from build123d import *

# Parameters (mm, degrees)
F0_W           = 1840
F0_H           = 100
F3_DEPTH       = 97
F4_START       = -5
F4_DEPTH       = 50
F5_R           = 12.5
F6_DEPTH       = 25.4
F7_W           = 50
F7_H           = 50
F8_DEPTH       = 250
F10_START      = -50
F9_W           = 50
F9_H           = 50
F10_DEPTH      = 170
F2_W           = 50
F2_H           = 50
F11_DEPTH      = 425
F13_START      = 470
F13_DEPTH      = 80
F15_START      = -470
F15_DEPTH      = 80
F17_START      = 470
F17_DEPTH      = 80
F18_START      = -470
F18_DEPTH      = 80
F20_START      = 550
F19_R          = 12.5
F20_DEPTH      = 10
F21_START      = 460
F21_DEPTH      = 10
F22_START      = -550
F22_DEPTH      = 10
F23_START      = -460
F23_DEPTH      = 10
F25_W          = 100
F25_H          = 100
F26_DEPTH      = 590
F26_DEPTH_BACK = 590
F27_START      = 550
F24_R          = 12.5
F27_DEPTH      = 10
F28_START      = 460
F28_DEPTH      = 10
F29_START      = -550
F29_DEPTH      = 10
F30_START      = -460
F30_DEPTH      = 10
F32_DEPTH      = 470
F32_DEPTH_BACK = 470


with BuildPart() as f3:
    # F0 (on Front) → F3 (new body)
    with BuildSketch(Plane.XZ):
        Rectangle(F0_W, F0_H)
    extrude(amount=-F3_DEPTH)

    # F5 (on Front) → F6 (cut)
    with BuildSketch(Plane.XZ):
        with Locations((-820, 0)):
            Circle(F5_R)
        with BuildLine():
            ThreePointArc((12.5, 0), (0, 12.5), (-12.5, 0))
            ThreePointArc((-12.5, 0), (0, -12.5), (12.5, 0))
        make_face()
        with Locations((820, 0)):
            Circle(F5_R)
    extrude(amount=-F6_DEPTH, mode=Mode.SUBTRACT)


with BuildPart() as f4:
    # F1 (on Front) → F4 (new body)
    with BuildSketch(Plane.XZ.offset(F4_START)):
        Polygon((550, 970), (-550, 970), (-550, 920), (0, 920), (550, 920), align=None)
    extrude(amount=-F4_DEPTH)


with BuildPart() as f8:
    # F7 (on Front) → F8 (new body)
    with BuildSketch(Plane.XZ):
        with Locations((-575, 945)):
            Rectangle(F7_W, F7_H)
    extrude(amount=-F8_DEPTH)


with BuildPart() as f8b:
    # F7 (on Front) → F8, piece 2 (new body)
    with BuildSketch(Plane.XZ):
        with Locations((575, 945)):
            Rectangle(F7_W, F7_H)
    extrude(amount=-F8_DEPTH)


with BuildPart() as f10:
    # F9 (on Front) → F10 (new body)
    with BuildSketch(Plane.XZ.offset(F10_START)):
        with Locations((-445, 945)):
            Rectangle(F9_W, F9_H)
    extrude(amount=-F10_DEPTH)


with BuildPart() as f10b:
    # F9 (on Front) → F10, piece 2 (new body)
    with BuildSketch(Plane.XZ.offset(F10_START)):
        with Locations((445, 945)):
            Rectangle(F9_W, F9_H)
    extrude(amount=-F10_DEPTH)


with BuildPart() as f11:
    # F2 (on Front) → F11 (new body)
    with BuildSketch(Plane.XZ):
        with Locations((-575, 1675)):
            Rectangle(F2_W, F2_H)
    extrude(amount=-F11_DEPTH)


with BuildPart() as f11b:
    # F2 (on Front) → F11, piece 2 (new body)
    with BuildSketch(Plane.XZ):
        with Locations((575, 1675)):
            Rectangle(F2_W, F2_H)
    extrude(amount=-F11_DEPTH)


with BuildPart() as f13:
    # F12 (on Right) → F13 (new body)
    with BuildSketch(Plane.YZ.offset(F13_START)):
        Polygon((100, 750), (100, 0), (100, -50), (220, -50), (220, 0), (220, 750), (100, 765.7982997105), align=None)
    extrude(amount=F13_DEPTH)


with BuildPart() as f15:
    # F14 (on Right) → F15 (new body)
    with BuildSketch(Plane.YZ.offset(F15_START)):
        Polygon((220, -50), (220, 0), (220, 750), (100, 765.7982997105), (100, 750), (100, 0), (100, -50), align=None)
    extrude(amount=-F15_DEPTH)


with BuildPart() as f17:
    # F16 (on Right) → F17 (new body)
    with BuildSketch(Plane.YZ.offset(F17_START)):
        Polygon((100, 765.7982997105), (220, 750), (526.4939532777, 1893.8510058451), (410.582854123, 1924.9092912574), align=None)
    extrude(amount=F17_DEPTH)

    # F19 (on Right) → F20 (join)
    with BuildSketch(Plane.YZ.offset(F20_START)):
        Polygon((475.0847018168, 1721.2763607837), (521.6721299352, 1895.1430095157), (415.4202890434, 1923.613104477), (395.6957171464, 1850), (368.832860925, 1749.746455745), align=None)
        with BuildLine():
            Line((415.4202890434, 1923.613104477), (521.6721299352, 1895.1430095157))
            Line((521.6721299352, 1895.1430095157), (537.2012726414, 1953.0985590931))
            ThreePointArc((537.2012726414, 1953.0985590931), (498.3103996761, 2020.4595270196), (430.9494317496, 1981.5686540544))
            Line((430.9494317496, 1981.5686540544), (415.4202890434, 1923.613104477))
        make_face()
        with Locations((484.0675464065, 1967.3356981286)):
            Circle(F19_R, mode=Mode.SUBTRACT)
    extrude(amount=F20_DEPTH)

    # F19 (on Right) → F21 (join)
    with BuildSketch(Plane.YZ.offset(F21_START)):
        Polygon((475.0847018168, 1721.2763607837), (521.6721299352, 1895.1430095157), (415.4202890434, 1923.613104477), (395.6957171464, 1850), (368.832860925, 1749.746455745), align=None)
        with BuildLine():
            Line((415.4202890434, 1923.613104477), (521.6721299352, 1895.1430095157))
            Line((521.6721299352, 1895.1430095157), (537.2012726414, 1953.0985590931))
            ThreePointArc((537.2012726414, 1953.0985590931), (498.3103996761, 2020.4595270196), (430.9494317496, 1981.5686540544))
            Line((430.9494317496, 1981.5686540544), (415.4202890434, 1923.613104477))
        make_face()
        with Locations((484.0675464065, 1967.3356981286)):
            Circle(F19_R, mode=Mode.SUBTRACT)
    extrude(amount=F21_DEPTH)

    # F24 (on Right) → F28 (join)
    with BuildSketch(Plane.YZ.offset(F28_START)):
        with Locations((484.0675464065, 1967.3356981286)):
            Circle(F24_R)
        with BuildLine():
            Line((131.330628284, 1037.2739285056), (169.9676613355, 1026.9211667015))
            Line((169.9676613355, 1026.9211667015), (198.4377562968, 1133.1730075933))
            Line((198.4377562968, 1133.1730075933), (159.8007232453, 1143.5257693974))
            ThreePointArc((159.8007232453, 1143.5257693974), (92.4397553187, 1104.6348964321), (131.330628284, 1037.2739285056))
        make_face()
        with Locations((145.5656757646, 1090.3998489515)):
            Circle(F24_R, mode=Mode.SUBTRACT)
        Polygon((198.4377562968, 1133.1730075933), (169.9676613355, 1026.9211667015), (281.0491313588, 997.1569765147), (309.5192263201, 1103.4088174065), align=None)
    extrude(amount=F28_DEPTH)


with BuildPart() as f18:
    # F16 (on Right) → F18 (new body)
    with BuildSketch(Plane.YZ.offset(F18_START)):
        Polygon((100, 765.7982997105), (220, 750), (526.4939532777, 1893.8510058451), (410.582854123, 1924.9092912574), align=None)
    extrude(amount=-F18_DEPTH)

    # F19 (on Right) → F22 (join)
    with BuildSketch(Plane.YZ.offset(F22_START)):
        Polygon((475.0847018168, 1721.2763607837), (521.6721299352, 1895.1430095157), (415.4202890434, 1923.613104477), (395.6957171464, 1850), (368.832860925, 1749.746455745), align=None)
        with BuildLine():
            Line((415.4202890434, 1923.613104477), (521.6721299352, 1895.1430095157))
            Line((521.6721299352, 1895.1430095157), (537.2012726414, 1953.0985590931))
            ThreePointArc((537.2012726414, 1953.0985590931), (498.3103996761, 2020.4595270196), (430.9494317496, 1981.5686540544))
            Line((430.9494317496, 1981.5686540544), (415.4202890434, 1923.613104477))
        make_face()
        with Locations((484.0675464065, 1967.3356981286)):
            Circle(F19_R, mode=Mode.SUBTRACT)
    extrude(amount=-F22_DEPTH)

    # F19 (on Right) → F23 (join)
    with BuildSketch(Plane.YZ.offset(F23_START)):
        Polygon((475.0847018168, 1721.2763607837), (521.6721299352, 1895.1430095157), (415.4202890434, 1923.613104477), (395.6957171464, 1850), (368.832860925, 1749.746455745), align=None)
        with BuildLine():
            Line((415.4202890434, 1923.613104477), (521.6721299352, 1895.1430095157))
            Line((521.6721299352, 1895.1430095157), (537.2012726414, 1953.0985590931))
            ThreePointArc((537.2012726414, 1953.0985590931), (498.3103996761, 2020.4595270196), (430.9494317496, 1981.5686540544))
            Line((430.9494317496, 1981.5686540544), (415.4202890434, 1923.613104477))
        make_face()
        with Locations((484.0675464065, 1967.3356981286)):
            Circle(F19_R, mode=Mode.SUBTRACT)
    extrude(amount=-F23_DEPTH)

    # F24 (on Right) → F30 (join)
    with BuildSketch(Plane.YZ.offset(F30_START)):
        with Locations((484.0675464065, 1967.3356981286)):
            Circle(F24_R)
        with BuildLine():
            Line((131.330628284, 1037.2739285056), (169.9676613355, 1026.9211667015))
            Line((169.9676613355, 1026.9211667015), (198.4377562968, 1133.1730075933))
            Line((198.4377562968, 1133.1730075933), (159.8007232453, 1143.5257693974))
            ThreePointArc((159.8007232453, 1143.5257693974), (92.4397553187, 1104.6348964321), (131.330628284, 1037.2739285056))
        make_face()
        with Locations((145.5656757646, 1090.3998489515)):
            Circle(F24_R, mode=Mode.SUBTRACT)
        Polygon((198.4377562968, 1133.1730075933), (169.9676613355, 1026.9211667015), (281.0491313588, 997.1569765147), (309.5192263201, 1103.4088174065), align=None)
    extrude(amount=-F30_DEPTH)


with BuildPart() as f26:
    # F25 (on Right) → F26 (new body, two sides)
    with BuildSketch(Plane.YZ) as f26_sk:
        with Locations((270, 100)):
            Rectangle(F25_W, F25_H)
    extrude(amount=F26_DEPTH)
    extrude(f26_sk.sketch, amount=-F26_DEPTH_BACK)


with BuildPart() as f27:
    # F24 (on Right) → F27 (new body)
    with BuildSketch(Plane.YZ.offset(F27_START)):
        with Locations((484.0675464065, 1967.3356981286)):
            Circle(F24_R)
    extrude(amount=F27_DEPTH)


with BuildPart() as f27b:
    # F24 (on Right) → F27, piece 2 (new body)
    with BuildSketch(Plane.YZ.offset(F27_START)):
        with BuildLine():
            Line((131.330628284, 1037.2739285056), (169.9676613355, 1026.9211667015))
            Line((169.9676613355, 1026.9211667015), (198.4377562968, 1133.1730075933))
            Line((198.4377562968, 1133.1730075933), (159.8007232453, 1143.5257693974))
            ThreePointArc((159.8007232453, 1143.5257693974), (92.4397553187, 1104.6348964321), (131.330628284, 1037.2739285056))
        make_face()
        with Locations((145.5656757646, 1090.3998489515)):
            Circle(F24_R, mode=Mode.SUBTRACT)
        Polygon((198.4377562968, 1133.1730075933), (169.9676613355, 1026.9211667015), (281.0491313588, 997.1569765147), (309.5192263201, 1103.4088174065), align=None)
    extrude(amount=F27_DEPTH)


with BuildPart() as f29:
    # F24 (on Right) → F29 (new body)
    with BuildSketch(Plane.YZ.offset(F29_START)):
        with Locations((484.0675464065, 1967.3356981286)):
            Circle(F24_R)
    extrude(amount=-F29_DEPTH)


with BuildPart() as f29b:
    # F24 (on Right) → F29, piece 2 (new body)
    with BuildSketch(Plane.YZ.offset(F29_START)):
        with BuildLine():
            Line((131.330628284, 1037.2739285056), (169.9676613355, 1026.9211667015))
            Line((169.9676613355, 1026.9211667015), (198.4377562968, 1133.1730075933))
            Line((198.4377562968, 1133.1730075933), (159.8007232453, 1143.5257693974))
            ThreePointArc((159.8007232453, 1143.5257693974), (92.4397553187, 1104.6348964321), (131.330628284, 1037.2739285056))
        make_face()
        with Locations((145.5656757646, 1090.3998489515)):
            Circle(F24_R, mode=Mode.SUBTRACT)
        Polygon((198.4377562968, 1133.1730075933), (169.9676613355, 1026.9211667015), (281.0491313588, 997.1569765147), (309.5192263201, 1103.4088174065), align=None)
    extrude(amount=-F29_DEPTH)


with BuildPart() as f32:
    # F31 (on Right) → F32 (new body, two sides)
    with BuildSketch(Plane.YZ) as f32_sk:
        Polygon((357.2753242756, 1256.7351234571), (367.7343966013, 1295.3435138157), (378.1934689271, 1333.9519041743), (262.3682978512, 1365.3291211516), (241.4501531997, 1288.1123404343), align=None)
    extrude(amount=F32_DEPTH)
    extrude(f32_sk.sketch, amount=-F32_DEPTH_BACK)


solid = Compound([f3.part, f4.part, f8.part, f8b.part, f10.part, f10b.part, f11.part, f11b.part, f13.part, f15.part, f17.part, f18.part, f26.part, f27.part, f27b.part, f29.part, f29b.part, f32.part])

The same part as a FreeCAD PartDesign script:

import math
import FreeCAD as App
import Part
import Sketcher
from FreeCAD import Vector
Q = App.Units.Quantity

doc = App.newDocument("Part")
body = doc.addObject("PartDesign::Body", "Body")

sketch1 = body.newObject("Sketcher::SketchObject", "Sketch")
sketch1.AttachmentSupport = (doc.getObject("XZ_Plane"), [""])
sketch1.MapMode = "FlatFace"
sketch1.addGeometry([
    Part.LineSegment(Vector(-920, 50, 0), Vector(-920, -50, 0)),
    Part.LineSegment(Vector(-920, -50, 0), Vector(920, -50, 0)),
    Part.LineSegment(Vector(920, -50, 0), Vector(920, 50, 0)),
    Part.LineSegment(Vector(920, 50, 0), Vector(-920, 50, 0)),
], False)
sketch1.addConstraint([
    Sketcher.Constraint("Coincident", 0, 2, 1, 1),
    Sketcher.Constraint("Coincident", 1, 2, 2, 1),
    Sketcher.Constraint("Coincident", 2, 2, 3, 1),
    Sketcher.Constraint("Coincident", 3, 2, 0, 1),
    Sketcher.Constraint("Vertical", 0),
    Sketcher.Constraint("Horizontal", 1),
    Sketcher.Constraint("Vertical", 2),
    Sketcher.Constraint("Horizontal", 3),
    Sketcher.Constraint("Symmetric", 0, 2, 2, 2, -1, 1),
    Sketcher.Constraint("DistanceX", 1, 1, 1, 2, Q("1840 mm")),
    Sketcher.Constraint("DistanceY", 0, 2, 0, 1, Q("100 mm")),
])
pad1 = body.newObject("PartDesign::Pad", "Pad")
pad1.Profile = sketch1
pad1.Length = 97
pad1.Reversed = True

sketch2 = body.newObject("Sketcher::SketchObject", "Sketch001")
sketch2.AttachmentSupport = (doc.getObject("XZ_Plane"), [""])
sketch2.MapMode = "FlatFace"
sketch2.addGeometry([
    Part.Circle(Vector(-820, 0, 0), Vector(0, 0, 1), 12),
    Part.Circle(Vector(0, 0, 0), Vector(0, 0, 1), 12),
    Part.Circle(Vector(820, 0, 0), Vector(0, 0, 1), 12),
], False)
sketch2.addConstraint([
    Sketcher.Constraint("Coincident", 1, 3, -1, 1),
    Sketcher.Constraint("Equal", 0, 1),
    Sketcher.Constraint("Equal", 1, 2),
    Sketcher.Constraint("Symmetric", 0, 3, 2, 3, -1, 1),
    Sketcher.Constraint("PointOnObject", 0, 3, -1),
    Sketcher.Constraint("Diameter", 0, Q("25 mm")),
    Sketcher.Constraint("DistanceX", 0, 3, -1, 1, Q("820 mm")),
])
pocket1 = body.newObject("PartDesign::Pocket", "Pocket")
pocket1.Profile = sketch2
pocket1.Length = 25.4
body2 = doc.addObject("PartDesign::Body", "Body001")

sketch3 = body2.newObject("Sketcher::SketchObject", "Sketch002")
sketch3.AttachmentSupport = (doc.getObject("XZ_Plane001"), [""])
sketch3.MapMode = "FlatFace"
sketch3.AttachmentOffset = App.Placement(Vector(0, 0, -5), App.Rotation())
sketch3.addGeometry([
    Part.LineSegment(Vector(550, 970, 0), Vector(-550, 970, 0)),
    Part.LineSegment(Vector(-550, 970, 0), Vector(-550, 920, 0)),
    Part.LineSegment(Vector(-550, 920, 0), Vector(550, 920, 0)),
    Part.LineSegment(Vector(550, 920, 0), Vector(550, 970, 0)),
], False)
sketch3.addConstraint([
    Sketcher.Constraint("Coincident", 0, 2, 1, 1),
    Sketcher.Constraint("Coincident", 1, 2, 2, 1),
    Sketcher.Constraint("Coincident", 2, 2, 3, 1),
    Sketcher.Constraint("Coincident", 3, 2, 0, 1),
    Sketcher.Constraint("Horizontal", 0),
    Sketcher.Constraint("Vertical", 1),
    Sketcher.Constraint("Horizontal", 2),
    Sketcher.Constraint("Vertical", 3),
    Sketcher.Constraint("DistanceX", 0, 2, 0, 1, Q("1100 mm")),
    Sketcher.Constraint("DistanceY", 1, 2, 1, 1, Q("50 mm")),
    Sketcher.Constraint("DistanceX", 0, 2, -1, 1, Q("550 mm")),
    Sketcher.Constraint("DistanceY", -1, 1, 0, 2, Q("970 mm")),
])
pad2 = body2.newObject("PartDesign::Pad", "Pad001")
pad2.Profile = sketch3
pad2.Length = 50
pad2.Reversed = True
body3 = doc.addObject("PartDesign::Body", "Body002")

sketch4 = body3.newObject("Sketcher::SketchObject", "Sketch003")
sketch4.AttachmentSupport = (doc.getObject("XZ_Plane002"), [""])
sketch4.MapMode = "FlatFace"
sketch4.addGeometry([
    Part.LineSegment(Vector(-600, 970, 0), Vector(-600, 920, 0)),
    Part.LineSegment(Vector(-600, 920, 0), Vector(-550, 920, 0)),
    Part.LineSegment(Vector(-550, 920, 0), Vector(-550, 970, 0)),
    Part.LineSegment(Vector(-550, 970, 0), Vector(-600, 970, 0)),
], False)
sketch4.addConstraint([
    Sketcher.Constraint("Coincident", 0, 2, 1, 1),
    Sketcher.Constraint("Coincident", 1, 2, 2, 1),
    Sketcher.Constraint("Coincident", 2, 2, 3, 1),
    Sketcher.Constraint("Coincident", 3, 2, 0, 1),
    Sketcher.Constraint("Vertical", 0),
    Sketcher.Constraint("Horizontal", 1),
    Sketcher.Constraint("Vertical", 2),
    Sketcher.Constraint("Horizontal", 3),
    Sketcher.Constraint("Equal", 3, 0),
    Sketcher.Constraint("DistanceX", 1, 1, 1, 2, Q("50 mm")),
    Sketcher.Constraint("DistanceX", 0, 2, -1, 1, Q("600 mm")),
    Sketcher.Constraint("DistanceY", -1, 1, 0, 2, Q("920 mm")),
])
pad3 = body3.newObject("PartDesign::Pad", "Pad002")
pad3.Profile = sketch4
pad3.Length = 250
pad3.Reversed = True
body4 = doc.addObject("PartDesign::Body", "Body003")

sketch5 = body4.newObject("Sketcher::SketchObject", "Sketch004")
sketch5.AttachmentSupport = (doc.getObject("XZ_Plane003"), [""])
sketch5.MapMode = "FlatFace"
sketch5.addGeometry([
    Part.LineSegment(Vector(550, 970, 0), Vector(550, 920, 0)),
    Part.LineSegment(Vector(550, 920, 0), Vector(600, 920, 0)),
    Part.LineSegment(Vector(600, 920, 0), Vector(600, 970, 0)),
    Part.LineSegment(Vector(600, 970, 0), Vector(550, 970, 0)),
], False)
sketch5.addConstraint([
    Sketcher.Constraint("Coincident", 0, 2, 1, 1),
    Sketcher.Constraint("Coincident", 1, 2, 2, 1),
    Sketcher.Constraint("Coincident", 2, 2, 3, 1),
    Sketcher.Constraint("Coincident", 3, 2, 0, 1),
    Sketcher.Constraint("Vertical", 0),
    Sketcher.Constraint("Horizontal", 1),
    Sketcher.Constraint("Vertical", 2),
    Sketcher.Constraint("Horizontal", 3),
    Sketcher.Constraint("Equal", 3, 0),
    Sketcher.Constraint("DistanceX", 1, 1, 1, 2, Q("50 mm")),
    Sketcher.Constraint("DistanceX", -1, 1, 0, 2, Q("550 mm")),
    Sketcher.Constraint("DistanceY", -1, 1, 0, 2, Q("920 mm")),
])
pad4 = body4.newObject("PartDesign::Pad", "Pad003")
pad4.Profile = sketch5
pad4.Length = 250
pad4.Reversed = True
body5 = doc.addObject("PartDesign::Body", "Body004")

sketch6 = body5.newObject("Sketcher::SketchObject", "Sketch005")
sketch6.AttachmentSupport = (doc.getObject("XZ_Plane004"), [""])
sketch6.MapMode = "FlatFace"
sketch6.AttachmentOffset = App.Placement(Vector(0, 0, -50), App.Rotation())
sketch6.addGeometry([
    Part.LineSegment(Vector(-470, 970, 0), Vector(-470, 920, 0)),
    Part.LineSegment(Vector(-470, 920, 0), Vector(-420, 920, 0)),
    Part.LineSegment(Vector(-420, 920, 0), Vector(-420, 970, 0)),
    Part.LineSegment(Vector(-420, 970, 0), Vector(-470, 970, 0)),
], False)
sketch6.addConstraint([
    Sketcher.Constraint("Coincident", 0, 2, 1, 1),
    Sketcher.Constraint("Coincident", 1, 2, 2, 1),
    Sketcher.Constraint("Coincident", 2, 2, 3, 1),
    Sketcher.Constraint("Coincident", 3, 2, 0, 1),
    Sketcher.Constraint("Vertical", 0),
    Sketcher.Constraint("Horizontal", 1),
    Sketcher.Constraint("Vertical", 2),
    Sketcher.Constraint("Horizontal", 3),
    Sketcher.Constraint("Equal", 3, 0),
    Sketcher.Constraint("DistanceX", 1, 1, 1, 2, Q("50 mm")),
    Sketcher.Constraint("DistanceX", 0, 2, -1, 1, Q("470 mm")),
    Sketcher.Constraint("DistanceY", -1, 1, 0, 2, Q("920 mm")),
])
pad5 = body5.newObject("PartDesign::Pad", "Pad004")
pad5.Profile = sketch6
pad5.Length = 170
pad5.Reversed = True
body6 = doc.addObject("PartDesign::Body", "Body005")

sketch7 = body6.newObject("Sketcher::SketchObject", "Sketch006")
sketch7.AttachmentSupport = (doc.getObject("XZ_Plane005"), [""])
sketch7.MapMode = "FlatFace"
sketch7.AttachmentOffset = App.Placement(Vector(0, 0, -50), App.Rotation())
sketch7.addGeometry([
    Part.LineSegment(Vector(420, 970, 0), Vector(420, 920, 0)),
    Part.LineSegment(Vector(420, 920, 0), Vector(470, 920, 0)),
    Part.LineSegment(Vector(470, 920, 0), Vector(470, 970, 0)),
    Part.LineSegment(Vector(470, 970, 0), Vector(420, 970, 0)),
], False)
sketch7.addConstraint([
    Sketcher.Constraint("Coincident", 0, 2, 1, 1),
    Sketcher.Constraint("Coincident", 1, 2, 2, 1),
    Sketcher.Constraint("Coincident", 2, 2, 3, 1),
    Sketcher.Constraint("Coincident", 3, 2, 0, 1),
    Sketcher.Constraint("Vertical", 0),
    Sketcher.Constraint("Horizontal", 1),
    Sketcher.Constraint("Vertical", 2),
    Sketcher.Constraint("Horizontal", 3),
    Sketcher.Constraint("Equal", 3, 0),
    Sketcher.Constraint("DistanceX", 1, 1, 1, 2, Q("50 mm")),
    Sketcher.Constraint("DistanceX", -1, 1, 0, 2, Q("420 mm")),
    Sketcher.Constraint("DistanceY", -1, 1, 0, 2, Q("920 mm")),
])
pad6 = body6.newObject("PartDesign::Pad", "Pad005")
pad6.Profile = sketch7
pad6.Length = 170
pad6.Reversed = True
body7 = doc.addObject("PartDesign::Body", "Body006")

sketch8 = body7.newObject("Sketcher::SketchObject", "Sketch007")
sketch8.AttachmentSupport = (doc.getObject("XZ_Plane006"), [""])
sketch8.MapMode = "FlatFace"
sketch8.addGeometry([
    Part.LineSegment(Vector(-600, 1700, 0), Vector(-600, 1650, 0)),
    Part.LineSegment(Vector(-600, 1650, 0), Vector(-550, 1650, 0)),
    Part.LineSegment(Vector(-550, 1650, 0), Vector(-550, 1700, 0)),
    Part.LineSegment(Vector(-550, 1700, 0), Vector(-600, 1700, 0)),
], False)
sketch8.addConstraint([
    Sketcher.Constraint("Coincident", 0, 2, 1, 1),
    Sketcher.Constraint("Coincident", 1, 2, 2, 1),
    Sketcher.Constraint("Coincident", 2, 2, 3, 1),
    Sketcher.Constraint("Coincident", 3, 2, 0, 1),
    Sketcher.Constraint("Vertical", 0),
    Sketcher.Constraint("Horizontal", 1),
    Sketcher.Constraint("Vertical", 2),
    Sketcher.Constraint("Horizontal", 3),
    Sketcher.Constraint("Equal", 3, 0),
    Sketcher.Constraint("DistanceX", 1, 1, 1, 2, Q("50 mm")),
    Sketcher.Constraint("DistanceX", 0, 2, -1, 1, Q("600 mm")),
    Sketcher.Constraint("DistanceY", -1, 1, 0, 2, Q("1650 mm")),
])
pad7 = body7.newObject("PartDesign::Pad", "Pad006")
pad7.Profile = sketch8
pad7.Length = 425
pad7.Reversed = True
body8 = doc.addObject("PartDesign::Body", "Body007")

sketch9 = body8.newObject("Sketcher::SketchObject", "Sketch008")
sketch9.AttachmentSupport = (doc.getObject("XZ_Plane007"), [""])
sketch9.MapMode = "FlatFace"
sketch9.addGeometry([
    Part.LineSegment(Vector(550, 1700, 0), Vector(550, 1650, 0)),
    Part.LineSegment(Vector(550, 1650, 0), Vector(600, 1650, 0)),
    Part.LineSegment(Vector(600, 1650, 0), Vector(600, 1700, 0)),
    Part.LineSegment(Vector(600, 1700, 0), Vector(550, 1700, 0)),
], False)
sketch9.addConstraint([
    Sketcher.Constraint("Coincident", 0, 2, 1, 1),
    Sketcher.Constraint("Coincident", 1, 2, 2, 1),
    Sketcher.Constraint("Coincident", 2, 2, 3, 1),
    Sketcher.Constraint("Coincident", 3, 2, 0, 1),
    Sketcher.Constraint("Vertical", 0),
    Sketcher.Constraint("Horizontal", 1),
    Sketcher.Constraint("Vertical", 2),
    Sketcher.Constraint("Horizontal", 3),
    Sketcher.Constraint("Equal", 3, 0),
    Sketcher.Constraint("DistanceX", 1, 1, 1, 2, Q("50 mm")),
    Sketcher.Constraint("DistanceX", -1, 1, 0, 2, Q("550 mm")),
    Sketcher.Constraint("DistanceY", -1, 1, 0, 2, Q("1650 mm")),
])
pad8 = body8.newObject("PartDesign::Pad", "Pad007")
pad8.Profile = sketch9
pad8.Length = 425
pad8.Reversed = True
body9 = doc.addObject("PartDesign::Body", "Body008")

sketch10 = body9.newObject("Sketcher::SketchObject", "Sketch009")
sketch10.AttachmentSupport = (doc.getObject("YZ_Plane008"), [""])
sketch10.MapMode = "FlatFace"
sketch10.AttachmentOffset = App.Placement(Vector(0, 0, 470), App.Rotation())
sketch10.addGeometry([
    Part.LineSegment(Vector(100, -50, 0), Vector(220, -50, 0)),
    Part.LineSegment(Vector(220, -50, 0), Vector(220, 750, 0)),
    Part.LineSegment(Vector(220, 750, 0), Vector(100, 766, 0)),
    Part.LineSegment(Vector(100, 766, 0), Vector(100, -50, 0)),
], False)
sketch10.addConstraint([
    Sketcher.Constraint("Coincident", 0, 2, 1, 1),
    Sketcher.Constraint("Coincident", 1, 2, 2, 1),
    Sketcher.Constraint("Coincident", 2, 2, 3, 1),
    Sketcher.Constraint("Coincident", 3, 2, 0, 1),
    Sketcher.Constraint("Horizontal", 0),
    Sketcher.Constraint("Vertical", 1),
    Sketcher.Constraint("Vertical", 3),
    Sketcher.Constraint("DistanceX", 0, 1, 0, 2, Q("120 mm")),
    Sketcher.Constraint("DistanceY", 1, 1, 1, 2, Q("800 mm")),
    Sketcher.Constraint("DistanceX", -1, 1, 0, 2, Q("220 mm")),
    Sketcher.Constraint("DistanceY", 0, 2, -1, 1, Q("50 mm")),
    Sketcher.Constraint("Angle", 2, Q("172.5 deg")),
])
pad9 = body9.newObject("PartDesign::Pad", "Pad008")
pad9.Profile = sketch10
pad9.Length = 80
body10 = doc.addObject("PartDesign::Body", "Body009")

sketch11 = body10.newObject("Sketcher::SketchObject", "Sketch010")
sketch11.AttachmentSupport = (doc.getObject("YZ_Plane009"), [""])
sketch11.MapMode = "FlatFace"
sketch11.AttachmentOffset = App.Placement(Vector(0, 0, -470), App.Rotation())
sketch11.addGeometry([
    Part.LineSegment(Vector(220, -50, 0), Vector(220, 750, 0)),
    Part.LineSegment(Vector(220, 750, 0), Vector(100, 766, 0)),
    Part.LineSegment(Vector(100, 766, 0), Vector(100, -50, 0)),
    Part.LineSegment(Vector(100, -50, 0), Vector(220, -50, 0)),
], False)
sketch11.addConstraint([
    Sketcher.Constraint("Coincident", 0, 2, 1, 1),
    Sketcher.Constraint("Coincident", 1, 2, 2, 1),
    Sketcher.Constraint("Coincident", 2, 2, 3, 1),
    Sketcher.Constraint("Coincident", 3, 2, 0, 1),
    Sketcher.Constraint("Vertical", 0),
    Sketcher.Constraint("Vertical", 2),
    Sketcher.Constraint("Horizontal", 3),
    Sketcher.Constraint("DistanceX", 3, 1, 3, 2, Q("120 mm")),
    Sketcher.Constraint("DistanceY", 0, 1, 0, 2, Q("800 mm")),
    Sketcher.Constraint("DistanceX", -1, 1, 0, 2, Q("220 mm")),
    Sketcher.Constraint("DistanceY", -1, 1, 0, 2, Q("750 mm")),
    Sketcher.Constraint("Angle", 1, Q("172.5 deg")),
])
pad10 = body10.newObject("PartDesign::Pad", "Pad009")
pad10.Profile = sketch11
pad10.Length = 80
pad10.Reversed = True
body11 = doc.addObject("PartDesign::Body", "Body010")

sketch12 = body11.newObject("Sketcher::SketchObject", "Sketch011")
sketch12.AttachmentSupport = (doc.getObject("YZ_Plane010"), [""])
sketch12.MapMode = "FlatFace"
sketch12.AttachmentOffset = App.Placement(Vector(0, 0, 470), App.Rotation())
sketch12.addGeometry([
    Part.LineSegment(Vector(100, 766, 0), Vector(220, 750, 0)),
    Part.LineSegment(Vector(220, 750, 0), Vector(526, 1894, 0)),
    Part.LineSegment(Vector(526, 1894, 0), Vector(411, 1925, 0)),
    Part.LineSegment(Vector(411, 1925, 0), Vector(100, 766, 0)),
], False)
sketch12.addConstraint([
    Sketcher.Constraint("Coincident", 0, 2, 1, 1),
    Sketcher.Constraint("Coincident", 1, 2, 2, 1),
    Sketcher.Constraint("Coincident", 2, 2, 3, 1),
    Sketcher.Constraint("Coincident", 3, 2, 0, 1),
    Sketcher.Constraint("Perpendicular", 1, 2),
    Sketcher.Constraint("Perpendicular", 2, 3),
    Sketcher.Constraint("Angle", 1, Q("75 deg")),
    Sketcher.Constraint("Distance", 2, Q("120 mm")),
    Sketcher.Constraint("Distance", 3, Q("1200 mm")),
    Sketcher.Constraint("DistanceX", -1, 1, 0, 2, Q("220 mm")),
    Sketcher.Constraint("DistanceY", -1, 1, 0, 2, Q("750 mm")),
    Sketcher.Constraint("DistanceX", -1, 1, 3, 2, Q("100 mm")),
])
pad11 = body11.newObject("PartDesign::Pad", "Pad010")
pad11.Profile = sketch12
pad11.Length = 80

sketch13 = body11.newObject("Sketcher::SketchObject", "Sketch012")
sketch13.AttachmentSupport = (doc.getObject("YZ_Plane010"), [""])
sketch13.MapMode = "FlatFace"
sketch13.AttachmentOffset = App.Placement(Vector(0, 0, 550), App.Rotation())
sketch13.addGeometry([
    Part.LineSegment(Vector(475, 1721, 0), Vector(537, 1953, 0)),
    Part.ArcOfCircle(Part.Circle(Vector(484, 1967, 0), Vector(0, 0, 1), 55), math.radians(-15), math.radians(165)),
    Part.LineSegment(Vector(431, 1982, 0), Vector(396, 1850, 0)),
    Part.LineSegment(Vector(396, 1850, 0), Vector(369, 1750, 0)),
    Part.LineSegment(Vector(369, 1750, 0), Vector(475, 1721, 0)),
    Part.Circle(Vector(484, 1967, 0), Vector(0, 0, 1), 12),
], False)
sketch13.addConstraint([
    Sketcher.Constraint("Tangent", 0, 2, 1, 1),
    Sketcher.Constraint("Tangent", 1, 2, 2, 1),
    Sketcher.Constraint("Coincident", 2, 2, 3, 1),
    Sketcher.Constraint("Coincident", 3, 2, 4, 1),
    Sketcher.Constraint("Coincident", 4, 2, 0, 1),
    Sketcher.Constraint("Parallel", 0, 2),
    Sketcher.Constraint("Parallel", 2, 3),
    Sketcher.Constraint("Perpendicular", 3, 4),
    Sketcher.Constraint("Diameter", 5, Q("25 mm")),
    Sketcher.Constraint("Radius", 1, Q("55 mm")),
    Sketcher.Constraint("Angle", 0, Q("75 deg")),
    Sketcher.Constraint("Distance", 0, Q("240 mm")),
    Sketcher.Constraint("DistanceY", -1, 1, 2, 2, Q("1850 mm")),
    Sketcher.Constraint("DistanceY", -1, 1, 5, 3, Q("1967.335698 mm")),
    Sketcher.Constraint("DistanceX", -1, 1, 4, 2, Q("475.084702 mm")),
    Sketcher.Constraint("DistanceY", -1, 1, 0, 2, Q("1953.098559 mm")),
    Sketcher.Constraint("DistanceX", 2, 2, 5, 3, Q("88.371829 mm")),
])
pad12 = body11.newObject("PartDesign::Pad", "Pad011")
pad12.Profile = sketch13
pad12.Length = 10

sketch14 = body11.newObject("Sketcher::SketchObject", "Sketch013")
sketch14.AttachmentSupport = (doc.getObject("YZ_Plane010"), [""])
sketch14.MapMode = "FlatFace"
sketch14.AttachmentOffset = App.Placement(Vector(0, 0, 460), App.Rotation())
sketch14.addGeometry([
    Part.LineSegment(Vector(475, 1721, 0), Vector(537, 1953, 0)),
    Part.ArcOfCircle(Part.Circle(Vector(484, 1967, 0), Vector(0, 0, 1), 55), math.radians(-15), math.radians(165)),
    Part.LineSegment(Vector(431, 1982, 0), Vector(396, 1850, 0)),
    Part.LineSegment(Vector(396, 1850, 0), Vector(369, 1750, 0)),
    Part.LineSegment(Vector(369, 1750, 0), Vector(475, 1721, 0)),
    Part.Circle(Vector(484, 1967, 0), Vector(0, 0, 1), 12),
], False)
sketch14.addConstraint([
    Sketcher.Constraint("Tangent", 0, 2, 1, 1),
    Sketcher.Constraint("Tangent", 1, 2, 2, 1),
    Sketcher.Constraint("Coincident", 2, 2, 3, 1),
    Sketcher.Constraint("Coincident", 3, 2, 4, 1),
    Sketcher.Constraint("Coincident", 4, 2, 0, 1),
    Sketcher.Constraint("Parallel", 0, 2),
    Sketcher.Constraint("Parallel", 2, 3),
    Sketcher.Constraint("Perpendicular", 3, 4),
    Sketcher.Constraint("Diameter", 5, Q("25 mm")),
    Sketcher.Constraint("Radius", 1, Q("55 mm")),
    Sketcher.Constraint("Angle", 0, Q("75 deg")),
    Sketcher.Constraint("Distance", 0, Q("240 mm")),
    Sketcher.Constraint("DistanceY", -1, 1, 2, 2, Q("1850 mm")),
    Sketcher.Constraint("DistanceY", -1, 1, 5, 3, Q("1967.335698 mm")),
    Sketcher.Constraint("DistanceX", -1, 1, 4, 2, Q("475.084702 mm")),
    Sketcher.Constraint("DistanceY", -1, 1, 0, 2, Q("1953.098559 mm")),
    Sketcher.Constraint("DistanceX", 2, 2, 5, 3, Q("88.371829 mm")),
])
pad13 = body11.newObject("PartDesign::Pad", "Pad012")
pad13.Profile = sketch14
pad13.Length = 10

sketch15 = body11.newObject("Sketcher::SketchObject", "Sketch014")
sketch15.AttachmentSupport = (doc.getObject("YZ_Plane010"), [""])
sketch15.MapMode = "FlatFace"
sketch15.AttachmentOffset = App.Placement(Vector(0, 0, 460), App.Rotation())
sketch15.addGeometry([
    Part.Circle(Vector(484, 1967, 0), Vector(0, 0, 1), 12),
    Part.LineSegment(Vector(131, 1037, 0), Vector(281, 997, 0)),
    Part.LineSegment(Vector(281, 997, 0), Vector(310, 1103, 0)),
    Part.LineSegment(Vector(310, 1103, 0), Vector(160, 1144, 0)),
    Part.ArcOfCircle(Part.Circle(Vector(146, 1090, 0), Vector(0, 0, 1), 55), math.radians(75), math.radians(255)),
    Part.Circle(Vector(146, 1090, 0), Vector(0, 0, 1), 12),
], False)
sketch15.addConstraint([
    Sketcher.Constraint("Coincident", 1, 2, 2, 1),
    Sketcher.Constraint("Coincident", 2, 2, 3, 1),
    Sketcher.Constraint("Tangent", 3, 2, 4, 1),
    Sketcher.Constraint("Tangent", 4, 2, 1, 1),
    Sketcher.Constraint("Coincident", 5, 3, 4, 3),
    Sketcher.Constraint("Equal", 0, 5),
    Sketcher.Constraint("Perpendicular", 1, 2),
    Sketcher.Constraint("Perpendicular", 2, 3),
    Sketcher.Constraint("Diameter", 0, Q("25 mm")),
    Sketcher.Constraint("Radius", 4, Q("55 mm")),
    Sketcher.Constraint("Angle", 1, Q("-15 deg")),
    Sketcher.Constraint("Distance", 1, Q("155 mm")),
    Sketcher.Constraint("DistanceY", -1, 1, 0, 3, Q("1967.335698 mm")),
    Sketcher.Constraint("DistanceY", -1, 1, 4, 3, Q("1090.399849 mm")),
    Sketcher.Constraint("DistanceX", -1, 1, 1, 2, Q("281.049131 mm")),
    Sketcher.Constraint("DistanceX", 4, 3, 0, 3, Q("338.501871 mm")),
])
pad14 = body11.newObject("PartDesign::Pad", "Pad013")
pad14.Profile = sketch15
pad14.Length = 10
body12 = doc.addObject("PartDesign::Body", "Body011")

sketch16 = body12.newObject("Sketcher::SketchObject", "Sketch015")
sketch16.AttachmentSupport = (doc.getObject("YZ_Plane011"), [""])
sketch16.MapMode = "FlatFace"
sketch16.AttachmentOffset = App.Placement(Vector(0, 0, -470), App.Rotation())
sketch16.addGeometry([
    Part.LineSegment(Vector(100, 766, 0), Vector(220, 750, 0)),
    Part.LineSegment(Vector(220, 750, 0), Vector(526, 1894, 0)),
    Part.LineSegment(Vector(526, 1894, 0), Vector(411, 1925, 0)),
    Part.LineSegment(Vector(411, 1925, 0), Vector(100, 766, 0)),
], False)
sketch16.addConstraint([
    Sketcher.Constraint("Coincident", 0, 2, 1, 1),
    Sketcher.Constraint("Coincident", 1, 2, 2, 1),
    Sketcher.Constraint("Coincident", 2, 2, 3, 1),
    Sketcher.Constraint("Coincident", 3, 2, 0, 1),
    Sketcher.Constraint("Perpendicular", 1, 2),
    Sketcher.Constraint("Perpendicular", 2, 3),
    Sketcher.Constraint("Angle", 1, Q("75 deg")),
    Sketcher.Constraint("Distance", 2, Q("120 mm")),
    Sketcher.Constraint("Distance", 3, Q("1200 mm")),
    Sketcher.Constraint("DistanceX", -1, 1, 0, 2, Q("220 mm")),
    Sketcher.Constraint("DistanceY", -1, 1, 0, 2, Q("750 mm")),
    Sketcher.Constraint("DistanceX", -1, 1, 3, 2, Q("100 mm")),
])
pad15 = body12.newObject("PartDesign::Pad", "Pad014")
pad15.Profile = sketch16
pad15.Length = 80
pad15.Reversed = True

sketch17 = body12.newObject("Sketcher::SketchObject", "Sketch016")
sketch17.AttachmentSupport = (doc.getObject("YZ_Plane011"), [""])
sketch17.MapMode = "FlatFace"
sketch17.AttachmentOffset = App.Placement(Vector(0, 0, -550), App.Rotation())
sketch17.addGeometry([
    Part.LineSegment(Vector(475, 1721, 0), Vector(537, 1953, 0)),
    Part.ArcOfCircle(Part.Circle(Vector(484, 1967, 0), Vector(0, 0, 1), 55), math.radians(-15), math.radians(165)),
    Part.LineSegment(Vector(431, 1982, 0), Vector(396, 1850, 0)),
    Part.LineSegment(Vector(396, 1850, 0), Vector(369, 1750, 0)),
    Part.LineSegment(Vector(369, 1750, 0), Vector(475, 1721, 0)),
    Part.Circle(Vector(484, 1967, 0), Vector(0, 0, 1), 12),
], False)
sketch17.addConstraint([
    Sketcher.Constraint("Tangent", 0, 2, 1, 1),
    Sketcher.Constraint("Tangent", 1, 2, 2, 1),
    Sketcher.Constraint("Coincident", 2, 2, 3, 1),
    Sketcher.Constraint("Coincident", 3, 2, 4, 1),
    Sketcher.Constraint("Coincident", 4, 2, 0, 1),
    Sketcher.Constraint("Parallel", 0, 2),
    Sketcher.Constraint("Parallel", 2, 3),
    Sketcher.Constraint("Perpendicular", 3, 4),
    Sketcher.Constraint("Diameter", 5, Q("25 mm")),
    Sketcher.Constraint("Radius", 1, Q("55 mm")),
    Sketcher.Constraint("Angle", 0, Q("75 deg")),
    Sketcher.Constraint("Distance", 0, Q("240 mm")),
    Sketcher.Constraint("DistanceY", -1, 1, 2, 2, Q("1850 mm")),
    Sketcher.Constraint("DistanceY", -1, 1, 5, 3, Q("1967.335698 mm")),
    Sketcher.Constraint("DistanceX", -1, 1, 4, 2, Q("475.084702 mm")),
    Sketcher.Constraint("DistanceY", -1, 1, 0, 2, Q("1953.098559 mm")),
    Sketcher.Constraint("DistanceX", 2, 2, 5, 3, Q("88.371829 mm")),
])
pad16 = body12.newObject("PartDesign::Pad", "Pad015")
pad16.Profile = sketch17
pad16.Length = 10
pad16.Reversed = True

sketch18 = body12.newObject("Sketcher::SketchObject", "Sketch017")
sketch18.AttachmentSupport = (doc.getObject("YZ_Plane011"), [""])
sketch18.MapMode = "FlatFace"
sketch18.AttachmentOffset = App.Placement(Vector(0, 0, -460), App.Rotation())
sketch18.addGeometry([
    Part.LineSegment(Vector(475, 1721, 0), Vector(537, 1953, 0)),
    Part.ArcOfCircle(Part.Circle(Vector(484, 1967, 0), Vector(0, 0, 1), 55), math.radians(-15), math.radians(165)),
    Part.LineSegment(Vector(431, 1982, 0), Vector(396, 1850, 0)),
    Part.LineSegment(Vector(396, 1850, 0), Vector(369, 1750, 0)),
    Part.LineSegment(Vector(369, 1750, 0), Vector(475, 1721, 0)),
    Part.Circle(Vector(484, 1967, 0), Vector(0, 0, 1), 12),
], False)
sketch18.addConstraint([
    Sketcher.Constraint("Tangent", 0, 2, 1, 1),
    Sketcher.Constraint("Tangent", 1, 2, 2, 1),
    Sketcher.Constraint("Coincident", 2, 2, 3, 1),
    Sketcher.Constraint("Coincident", 3, 2, 4, 1),
    Sketcher.Constraint("Coincident", 4, 2, 0, 1),
    Sketcher.Constraint("Parallel", 0, 2),
    Sketcher.Constraint("Parallel", 2, 3),
    Sketcher.Constraint("Perpendicular", 3, 4),
    Sketcher.Constraint("Diameter", 5, Q("25 mm")),
    Sketcher.Constraint("Radius", 1, Q("55 mm")),
    Sketcher.Constraint("Angle", 0, Q("75 deg")),
    Sketcher.Constraint("Distance", 0, Q("240 mm")),
    Sketcher.Constraint("DistanceY", -1, 1, 2, 2, Q("1850 mm")),
    Sketcher.Constraint("DistanceY", -1, 1, 5, 3, Q("1967.335698 mm")),
    Sketcher.Constraint("DistanceX", -1, 1, 4, 2, Q("475.084702 mm")),
    Sketcher.Constraint("DistanceY", -1, 1, 0, 2, Q("1953.098559 mm")),
    Sketcher.Constraint("DistanceX", 2, 2, 5, 3, Q("88.371829 mm")),
])
pad17 = body12.newObject("PartDesign::Pad", "Pad016")
pad17.Profile = sketch18
pad17.Length = 10
pad17.Reversed = True

sketch19 = body12.newObject("Sketcher::SketchObject", "Sketch018")
sketch19.AttachmentSupport = (doc.getObject("YZ_Plane011"), [""])
sketch19.MapMode = "FlatFace"
sketch19.AttachmentOffset = App.Placement(Vector(0, 0, -460), App.Rotation())
sketch19.addGeometry([
    Part.Circle(Vector(484, 1967, 0), Vector(0, 0, 1), 12),
    Part.LineSegment(Vector(131, 1037, 0), Vector(281, 997, 0)),
    Part.LineSegment(Vector(281, 997, 0), Vector(310, 1103, 0)),
    Part.LineSegment(Vector(310, 1103, 0), Vector(160, 1144, 0)),
    Part.ArcOfCircle(Part.Circle(Vector(146, 1090, 0), Vector(0, 0, 1), 55), math.radians(75), math.radians(255)),
    Part.Circle(Vector(146, 1090, 0), Vector(0, 0, 1), 12),
], False)
sketch19.addConstraint([
    Sketcher.Constraint("Coincident", 1, 2, 2, 1),
    Sketcher.Constraint("Coincident", 2, 2, 3, 1),
    Sketcher.Constraint("Tangent", 3, 2, 4, 1),
    Sketcher.Constraint("Tangent", 4, 2, 1, 1),
    Sketcher.Constraint("Coincident", 5, 3, 4, 3),
    Sketcher.Constraint("Equal", 0, 5),
    Sketcher.Constraint("Perpendicular", 1, 2),
    Sketcher.Constraint("Perpendicular", 2, 3),
    Sketcher.Constraint("Diameter", 0, Q("25 mm")),
    Sketcher.Constraint("Radius", 4, Q("55 mm")),
    Sketcher.Constraint("Angle", 1, Q("-15 deg")),
    Sketcher.Constraint("Distance", 1, Q("155 mm")),
    Sketcher.Constraint("DistanceY", -1, 1, 0, 3, Q("1967.335698 mm")),
    Sketcher.Constraint("DistanceY", -1, 1, 4, 3, Q("1090.399849 mm")),
    Sketcher.Constraint("DistanceX", -1, 1, 1, 2, Q("281.049131 mm")),
    Sketcher.Constraint("DistanceX", 4, 3, 0, 3, Q("338.501871 mm")),
])
pad18 = body12.newObject("PartDesign::Pad", "Pad017")
pad18.Profile = sketch19
pad18.Length = 10
pad18.Reversed = True
body13 = doc.addObject("PartDesign::Body", "Body012")

sketch20 = body13.newObject("Sketcher::SketchObject", "Sketch019")
sketch20.AttachmentSupport = (doc.getObject("YZ_Plane012"), [""])
sketch20.MapMode = "FlatFace"
sketch20.addGeometry([
    Part.LineSegment(Vector(220, 150, 0), Vector(220, 50, 0)),
    Part.LineSegment(Vector(220, 50, 0), Vector(320, 50, 0)),
    Part.LineSegment(Vector(320, 50, 0), Vector(320, 150, 0)),
    Part.LineSegment(Vector(320, 150, 0), Vector(220, 150, 0)),
], False)
sketch20.addConstraint([
    Sketcher.Constraint("Coincident", 0, 2, 1, 1),
    Sketcher.Constraint("Coincident", 1, 2, 2, 1),
    Sketcher.Constraint("Coincident", 2, 2, 3, 1),
    Sketcher.Constraint("Coincident", 3, 2, 0, 1),
    Sketcher.Constraint("Vertical", 0),
    Sketcher.Constraint("Horizontal", 1),
    Sketcher.Constraint("Vertical", 2),
    Sketcher.Constraint("Horizontal", 3),
    Sketcher.Constraint("Equal", 3, 0),
    Sketcher.Constraint("DistanceX", 1, 1, 1, 2, Q("100 mm")),
    Sketcher.Constraint("DistanceX", -1, 1, 0, 2, Q("220 mm")),
    Sketcher.Constraint("DistanceY", -1, 1, 0, 2, Q("50 mm")),
])
pad19 = body13.newObject("PartDesign::Pad", "Pad018")
pad19.Profile = sketch20
pad19.Type = "TwoLengths"
pad19.Length = 590
pad19.Length2 = 590
body14 = doc.addObject("PartDesign::Body", "Body013")

sketch21 = body14.newObject("Sketcher::SketchObject", "Sketch020")
sketch21.AttachmentSupport = (doc.getObject("YZ_Plane013"), [""])
sketch21.MapMode = "FlatFace"
sketch21.AttachmentOffset = App.Placement(Vector(0, 0, 550), App.Rotation())
sketch21.addGeometry(Part.Circle(Vector(484, 1967, 0), Vector(0, 0, 1), 12), False)
sketch21.addConstraint([
    Sketcher.Constraint("Diameter", 0, Q("25 mm")),
    Sketcher.Constraint("DistanceY", -1, 1, 0, 3, Q("1967.335698 mm")),
    Sketcher.Constraint("DistanceX", -1, 1, 0, 3, Q("484.067546 mm")),
])
pad20 = body14.newObject("PartDesign::Pad", "Pad019")
pad20.Profile = sketch21
pad20.Length = 10
body15 = doc.addObject("PartDesign::Body", "Body014")

sketch22 = body15.newObject("Sketcher::SketchObject", "Sketch021")
sketch22.AttachmentSupport = (doc.getObject("YZ_Plane014"), [""])
sketch22.MapMode = "FlatFace"
sketch22.AttachmentOffset = App.Placement(Vector(0, 0, 550), App.Rotation())
sketch22.addGeometry([
    Part.LineSegment(Vector(131, 1037, 0), Vector(281, 997, 0)),
    Part.LineSegment(Vector(281, 997, 0), Vector(310, 1103, 0)),
    Part.LineSegment(Vector(310, 1103, 0), Vector(160, 1144, 0)),
    Part.ArcOfCircle(Part.Circle(Vector(146, 1090, 0), Vector(0, 0, 1), 55), math.radians(75), math.radians(255)),
    Part.Circle(Vector(146, 1090, 0), Vector(0, 0, 1), 12),
], False)
sketch22.addConstraint([
    Sketcher.Constraint("Coincident", 0, 2, 1, 1),
    Sketcher.Constraint("Coincident", 1, 2, 2, 1),
    Sketcher.Constraint("Tangent", 2, 2, 3, 1),
    Sketcher.Constraint("Tangent", 3, 2, 0, 1),
    Sketcher.Constraint("Coincident", 4, 3, 3, 3),
    Sketcher.Constraint("Perpendicular", 0, 1),
    Sketcher.Constraint("Perpendicular", 1, 2),
    Sketcher.Constraint("Diameter", 4, Q("25 mm")),
    Sketcher.Constraint("Radius", 3, Q("55 mm")),
    Sketcher.Constraint("Angle", 0, Q("-15 deg")),
    Sketcher.Constraint("Distance", 0, Q("155 mm")),
    Sketcher.Constraint("DistanceY", -1, 1, 3, 3, Q("1090.399849 mm")),
    Sketcher.Constraint("DistanceX", -1, 1, 0, 2, Q("281.049131 mm")),
])
pad21 = body15.newObject("PartDesign::Pad", "Pad020")
pad21.Profile = sketch22
pad21.Length = 10
body16 = doc.addObject("PartDesign::Body", "Body015")

sketch23 = body16.newObject("Sketcher::SketchObject", "Sketch022")
sketch23.AttachmentSupport = (doc.getObject("YZ_Plane015"), [""])
sketch23.MapMode = "FlatFace"
sketch23.AttachmentOffset = App.Placement(Vector(0, 0, -550), App.Rotation())
sketch23.addGeometry(Part.Circle(Vector(484, 1967, 0), Vector(0, 0, 1), 12), False)
sketch23.addConstraint([
    Sketcher.Constraint("Diameter", 0, Q("25 mm")),
    Sketcher.Constraint("DistanceY", -1, 1, 0, 3, Q("1967.335698 mm")),
    Sketcher.Constraint("DistanceX", -1, 1, 0, 3, Q("484.067546 mm")),
])
pad22 = body16.newObject("PartDesign::Pad", "Pad021")
pad22.Profile = sketch23
pad22.Length = 10
pad22.Reversed = True
body17 = doc.addObject("PartDesign::Body", "Body016")

sketch24 = body17.newObject("Sketcher::SketchObject", "Sketch023")
sketch24.AttachmentSupport = (doc.getObject("YZ_Plane016"), [""])
sketch24.MapMode = "FlatFace"
sketch24.AttachmentOffset = App.Placement(Vector(0, 0, -550), App.Rotation())
sketch24.addGeometry([
    Part.LineSegment(Vector(131, 1037, 0), Vector(281, 997, 0)),
    Part.LineSegment(Vector(281, 997, 0), Vector(310, 1103, 0)),
    Part.LineSegment(Vector(310, 1103, 0), Vector(160, 1144, 0)),
    Part.ArcOfCircle(Part.Circle(Vector(146, 1090, 0), Vector(0, 0, 1), 55), math.radians(75), math.radians(255)),
    Part.Circle(Vector(146, 1090, 0), Vector(0, 0, 1), 12),
], False)
sketch24.addConstraint([
    Sketcher.Constraint("Coincident", 0, 2, 1, 1),
    Sketcher.Constraint("Coincident", 1, 2, 2, 1),
    Sketcher.Constraint("Tangent", 2, 2, 3, 1),
    Sketcher.Constraint("Tangent", 3, 2, 0, 1),
    Sketcher.Constraint("Coincident", 4, 3, 3, 3),
    Sketcher.Constraint("Perpendicular", 0, 1),
    Sketcher.Constraint("Perpendicular", 1, 2),
    Sketcher.Constraint("Diameter", 4, Q("25 mm")),
    Sketcher.Constraint("Radius", 3, Q("55 mm")),
    Sketcher.Constraint("Angle", 0, Q("-15 deg")),
    Sketcher.Constraint("Distance", 0, Q("155 mm")),
    Sketcher.Constraint("DistanceY", -1, 1, 3, 3, Q("1090.399849 mm")),
    Sketcher.Constraint("DistanceX", -1, 1, 0, 2, Q("281.049131 mm")),
])
pad23 = body17.newObject("PartDesign::Pad", "Pad022")
pad23.Profile = sketch24
pad23.Length = 10
pad23.Reversed = True
body18 = doc.addObject("PartDesign::Body", "Body017")

sketch25 = body18.newObject("Sketcher::SketchObject", "Sketch024")
sketch25.AttachmentSupport = (doc.getObject("YZ_Plane017"), [""])
sketch25.MapMode = "FlatFace"
sketch25.addGeometry([
    Part.LineSegment(Vector(357, 1257, 0), Vector(368, 1295, 0)),
    Part.LineSegment(Vector(368, 1295, 0), Vector(378, 1334, 0)),
    Part.LineSegment(Vector(378, 1334, 0), Vector(262, 1365, 0)),
    Part.LineSegment(Vector(262, 1365, 0), Vector(241, 1288, 0)),
    Part.LineSegment(Vector(241, 1288, 0), Vector(357, 1257, 0)),
], False)
sketch25.addConstraint([
    Sketcher.Constraint("Coincident", 0, 2, 1, 1),
    Sketcher.Constraint("Coincident", 1, 2, 2, 1),
    Sketcher.Constraint("Coincident", 2, 2, 3, 1),
    Sketcher.Constraint("Coincident", 3, 2, 4, 1),
    Sketcher.Constraint("Coincident", 4, 2, 0, 1),
    Sketcher.Constraint("Parallel", 0, 1),
    Sketcher.Constraint("Perpendicular", 1, 2),
    Sketcher.Constraint("Perpendicular", 2, 3),
    Sketcher.Constraint("Perpendicular", 3, 4),
    Sketcher.Constraint("Equal", 0, 1),
    Sketcher.Constraint("Distance", 0, Q("40 mm")),
    Sketcher.Constraint("Distance", 2, Q("120 mm")),
    Sketcher.Constraint("DistanceX", 2, 2, 0, 2, Q("105.366099 mm")),
    Sketcher.Constraint("DistanceX", -1, 1, 1, 2, Q("378.193469 mm")),
    Sketcher.Constraint("DistanceY", -1, 1, 2, 2, Q("1365.329121 mm")),
])
pad24 = body18.newObject("PartDesign::Pad", "Pad023")
pad24.Profile = sketch25
pad24.Type = "TwoLengths"
pad24.Length = 470
pad24.Length2 = 470

doc.recompute()
